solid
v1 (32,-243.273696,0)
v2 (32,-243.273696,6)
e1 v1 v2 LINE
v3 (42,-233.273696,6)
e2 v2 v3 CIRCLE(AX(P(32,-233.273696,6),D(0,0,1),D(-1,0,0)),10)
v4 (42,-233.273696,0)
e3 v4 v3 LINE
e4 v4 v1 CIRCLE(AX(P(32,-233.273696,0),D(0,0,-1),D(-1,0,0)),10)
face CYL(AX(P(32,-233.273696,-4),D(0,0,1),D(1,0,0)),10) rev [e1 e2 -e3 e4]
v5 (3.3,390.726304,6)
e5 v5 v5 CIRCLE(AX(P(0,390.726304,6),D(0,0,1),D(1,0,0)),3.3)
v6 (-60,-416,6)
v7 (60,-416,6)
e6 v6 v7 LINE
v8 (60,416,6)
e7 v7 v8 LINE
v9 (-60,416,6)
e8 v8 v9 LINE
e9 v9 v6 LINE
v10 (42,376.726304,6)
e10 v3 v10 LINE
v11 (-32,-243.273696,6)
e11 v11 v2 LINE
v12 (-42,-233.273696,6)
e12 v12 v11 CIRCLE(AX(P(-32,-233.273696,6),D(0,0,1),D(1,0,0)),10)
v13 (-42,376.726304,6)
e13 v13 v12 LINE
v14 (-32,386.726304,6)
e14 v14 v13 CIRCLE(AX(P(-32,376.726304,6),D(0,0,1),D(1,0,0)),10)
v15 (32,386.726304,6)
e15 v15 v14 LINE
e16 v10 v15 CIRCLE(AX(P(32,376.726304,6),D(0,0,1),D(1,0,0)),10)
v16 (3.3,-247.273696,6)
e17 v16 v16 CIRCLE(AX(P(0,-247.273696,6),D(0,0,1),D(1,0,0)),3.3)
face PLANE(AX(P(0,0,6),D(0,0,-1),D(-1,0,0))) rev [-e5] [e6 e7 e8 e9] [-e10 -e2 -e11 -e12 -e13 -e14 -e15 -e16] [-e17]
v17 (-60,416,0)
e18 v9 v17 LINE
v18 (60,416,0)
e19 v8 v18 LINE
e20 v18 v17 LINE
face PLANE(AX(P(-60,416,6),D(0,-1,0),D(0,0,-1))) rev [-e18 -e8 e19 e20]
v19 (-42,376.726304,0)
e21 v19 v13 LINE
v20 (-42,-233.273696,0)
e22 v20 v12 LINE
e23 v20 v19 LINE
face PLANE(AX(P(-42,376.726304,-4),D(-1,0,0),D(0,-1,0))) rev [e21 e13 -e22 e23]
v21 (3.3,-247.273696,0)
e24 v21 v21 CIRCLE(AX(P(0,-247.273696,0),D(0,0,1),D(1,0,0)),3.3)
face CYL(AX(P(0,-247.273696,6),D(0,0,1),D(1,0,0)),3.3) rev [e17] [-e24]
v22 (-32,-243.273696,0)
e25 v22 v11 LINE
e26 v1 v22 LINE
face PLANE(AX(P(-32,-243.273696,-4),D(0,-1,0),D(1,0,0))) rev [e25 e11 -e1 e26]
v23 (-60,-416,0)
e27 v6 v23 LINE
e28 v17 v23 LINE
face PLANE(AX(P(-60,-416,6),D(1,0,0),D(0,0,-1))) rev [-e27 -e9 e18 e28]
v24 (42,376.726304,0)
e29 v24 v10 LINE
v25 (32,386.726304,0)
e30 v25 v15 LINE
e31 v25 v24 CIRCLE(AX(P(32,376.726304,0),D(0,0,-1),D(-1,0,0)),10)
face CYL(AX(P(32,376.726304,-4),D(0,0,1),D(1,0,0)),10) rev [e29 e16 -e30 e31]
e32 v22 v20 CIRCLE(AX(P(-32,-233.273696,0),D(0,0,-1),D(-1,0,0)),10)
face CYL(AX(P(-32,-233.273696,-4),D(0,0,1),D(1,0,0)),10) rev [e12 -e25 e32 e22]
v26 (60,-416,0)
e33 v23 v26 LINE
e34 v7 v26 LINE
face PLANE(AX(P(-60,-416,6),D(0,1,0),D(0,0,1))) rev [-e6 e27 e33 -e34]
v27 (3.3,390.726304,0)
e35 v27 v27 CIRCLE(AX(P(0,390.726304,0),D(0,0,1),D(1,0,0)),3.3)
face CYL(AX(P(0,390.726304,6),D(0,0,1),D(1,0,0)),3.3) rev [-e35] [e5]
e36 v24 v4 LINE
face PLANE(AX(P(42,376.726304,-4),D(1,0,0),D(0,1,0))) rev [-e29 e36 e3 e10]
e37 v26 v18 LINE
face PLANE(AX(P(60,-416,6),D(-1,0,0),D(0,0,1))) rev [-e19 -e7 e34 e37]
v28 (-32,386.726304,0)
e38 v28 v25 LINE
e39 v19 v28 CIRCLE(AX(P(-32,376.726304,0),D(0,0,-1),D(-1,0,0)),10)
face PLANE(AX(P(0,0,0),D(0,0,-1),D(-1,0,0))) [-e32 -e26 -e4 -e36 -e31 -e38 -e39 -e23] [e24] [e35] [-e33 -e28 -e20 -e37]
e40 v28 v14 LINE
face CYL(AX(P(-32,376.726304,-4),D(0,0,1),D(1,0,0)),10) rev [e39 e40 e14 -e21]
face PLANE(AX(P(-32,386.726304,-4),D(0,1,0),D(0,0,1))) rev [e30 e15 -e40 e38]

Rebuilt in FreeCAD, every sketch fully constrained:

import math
import FreeCAD as App
import Part
import Sketcher
from FreeCAD import Vector
Q = App.Units.Quantity

doc = App.newDocument("Part")
params = doc.addObject("Spreadsheet::Sheet", "Params")
for row, (alias, value) in enumerate([
    ("sketch1_width", "120 mm"),
    ("sketch1_height", "832 mm"),
    ("pad1_length", "6 mm"),
    ("sketch2_radius", "10 mm"),
    ("sketch2_width", "64 mm"),
    ("sketch2_height", "610 mm"),
    ("pocket1_length", "10 mm"),
    ("sketch3_diameter", "6.6 mm"),
    ("hole_diameter", "6.6 mm"),
    ("hole_depth", "6 mm"),
], start=1):
    params.set(f"A{row}", alias)
    params.set(f"B{row}", "=" + value)
    params.setAlias(f"B{row}", alias)

body = doc.addObject("PartDesign::Body", "Body")

sketch1 = body.newObject("Sketcher::SketchObject", "Sketch")
sketch1.AttachmentSupport = (doc.getObject("XY_Plane"), [""])
sketch1.MapMode = "FlatFace"
sketch1.addGeometry(Part.LineSegment(Vector(-60, 416, 0), Vector(-60, -416, 0)), False)
sketch1.addGeometry(Part.LineSegment(Vector(-60, -416, 0), Vector(60, -416, 0)), False)
sketch1.addGeometry(Part.LineSegment(Vector(60, -416, 0), Vector(60, 416, 0)), False)
sketch1.addGeometry(Part.LineSegment(Vector(60, 416, 0), Vector(-60, 416, 0)), False)
sketch1.addConstraint(Sketcher.Constraint("Coincident", 0, 2, 1, 1))
sketch1.addConstraint(Sketcher.Constraint("Coincident", 1, 2, 2, 1))
sketch1.addConstraint(Sketcher.Constraint("Coincident", 2, 2, 3, 1))
sketch1.addConstraint(Sketcher.Constraint("Coincident", 3, 2, 0, 1))
sketch1.addConstraint(Sketcher.Constraint("Vertical", 0))
sketch1.addConstraint(Sketcher.Constraint("Horizontal", 1))
sketch1.addConstraint(Sketcher.Constraint("Vertical", 2))
sketch1.addConstraint(Sketcher.Constraint("Horizontal", 3))
sketch1.addConstraint(Sketcher.Constraint("Symmetric", 0, 2, 2, 2, -1, 1))
sketch1.addConstraint(Sketcher.Constraint("DistanceX", 1, 1, 1, 2, Q("120 mm")))
sketch1.addConstraint(Sketcher.Constraint("DistanceY", 0, 2, 0, 1, Q("832 mm")))
sketch1.setExpression("Constraints[9]", "Params.sketch1_width")
sketch1.setExpression("Constraints[10]", "Params.sketch1_height")
pad1 = body.newObject("PartDesign::Pad", "Pad")
pad1.Profile = sketch1
pad1.setExpression("Length", "Params.pad1_length")

sketch2 = body.newObject("Sketcher::SketchObject", "Sketch001")
sketch2.AttachmentSupport = (doc.getObject("XY_Plane"), [""])
sketch2.MapMode = "FlatFace"
sketch2.AttachmentOffset = App.Placement(Vector(0, 0, 6), App.Rotation())
sketch2.addGeometry(Part.LineSegment(Vector(-42, 377, 0), Vector(-42, -233, 0)), False)
sketch2.addGeometry(Part.ArcOfCircle(Part.Circle(Vector(-32, -233, 0), Vector(0, 0, 1), 10), math.radians(-180), math.radians(-90)), False)
sketch2.addGeometry(Part.LineSegment(Vector(-32, -243, 0), Vector(32, -243, 0)), False)
sketch2.addGeometry(Part.ArcOfCircle(Part.Circle(Vector(32, -233, 0), Vector(0, 0, 1), 10), math.radians(-90), math.radians(0)), False)
sketch2.addGeometry(Part.LineSegment(Vector(42, -233, 0), Vector(42, 377, 0)), False)
sketch2.addGeometry(Part.ArcOfCircle(Part.Circle(Vector(32, 377, 0), Vector(0, 0, 1), 10), math.radians(0), math.radians(90)), False)
sketch2.addGeometry(Part.LineSegment(Vector(32, 387, 0), Vector(-32, 387, 0)), False)
sketch2.addGeometry(Part.ArcOfCircle(Part.Circle(Vector(-32, 377, 0), Vector(0, 0, 1), 10), math.radians(90), math.radians(180)), False)
sketch2.addConstraint(Sketcher.Constraint("Tangent", 0, 2, 1, 1))
sketch2.addConstraint(Sketcher.Constraint("Tangent", 1, 2, 2, 1))
sketch2.addConstraint(Sketcher.Constraint("Tangent", 2, 2, 3, 1))
sketch2.addConstraint(Sketcher.Constraint("Tangent", 3, 2, 4, 1))
sketch2.addConstraint(Sketcher.Constraint("Tangent", 4, 2, 5, 1))
sketch2.addConstraint(Sketcher.Constraint("Tangent", 5, 2, 6, 1))
sketch2.addConstraint(Sketcher.Constraint("Tangent", 6, 2, 7, 1))
sketch2.addConstraint(Sketcher.Constraint("Tangent", 7, 2, 0, 1))
sketch2.addConstraint(Sketcher.Constraint("Vertical", 0))
sketch2.addConstraint(Sketcher.Constraint("Horizontal", 2))
sketch2.addConstraint(Sketcher.Constraint("Vertical", 4))
sketch2.addConstraint(Sketcher.Constraint("Horizontal", 6))
sketch2.addConstraint(Sketcher.Constraint("Equal", 1, 3))
sketch2.addConstraint(Sketcher.Constraint("Equal", 3, 5))
sketch2.addConstraint(Sketcher.Constraint("Equal", 5, 7))
sketch2.addConstraint(Sketcher.Constraint("Radius", 1, Q("10 mm")))
sketch2.addConstraint(Sketcher.Constraint("DistanceX", 2, 1, 2, 2, Q("64 mm")))
sketch2.addConstraint(Sketcher.Constraint("DistanceY", 0, 2, 0, 1, Q("610 mm")))
sketch2.addConstraint(Sketcher.Constraint("DistanceX", 1, 3, -1, 1, Q("32 mm")))
sketch2.addConstraint(Sketcher.Constraint("DistanceY", 1, 3, -1, 1, Q("233.273696 mm")))
sketch2.setExpression("Constraints[15]", "Params.sketch2_radius")
sketch2.setExpression("Constraints[16]", "Params.sketch2_width")
sketch2.setExpression("Constraints[17]", "Params.sketch2_height")
pocket1 = body.newObject("PartDesign::Pocket", "Pocket")
pocket1.Profile = sketch2
pocket1.setExpression("Length", "Params.pocket1_length")

sketch3 = body.newObject("Sketcher::SketchObject", "Sketch002")
sketch3.AttachmentSupport = (doc.getObject("XY_Plane"), [""])
sketch3.MapMode = "FlatFace"
sketch3.AttachmentOffset = App.Placement(Vector(0, 0, 6), App.Rotation())
sketch3.addGeometry(Part.Circle(Vector(0, 390.7, 0), Vector(0, 0, 1), 3.3), False)
sketch3.addGeometry(Part.Circle(Vector(0, -247.3, 0), Vector(0, 0, 1), 3.3), False)
sketch3.addConstraint(Sketcher.Constraint("Equal", 0, 1))
sketch3.addConstraint(Sketcher.Constraint("PointOnObject", 0, 3, -2))
sketch3.addConstraint(Sketcher.Constraint("PointOnObject", 1, 3, -2))
sketch3.addConstraint(Sketcher.Constraint("Diameter", 0, Q("6.6 mm")))
sketch3.addConstraint(Sketcher.Constraint("DistanceY", 1, 3, 0, 3, Q("638 mm")))
sketch3.addConstraint(Sketcher.Constraint("DistanceY", -1, 1, 0, 3, Q("390.726304 mm")))
sketch3.setExpression("Constraints[3]", "Params.sketch3_diameter")
doc.recompute()
hole = body.newObject("PartDesign::Hole", "Hole")
hole.Profile = sketch3
hole.ThreadType = "None"
hole.setExpression("Diameter", "Params.hole_diameter")
hole.DepthType = "Dimension"
hole.setExpression("Depth", "Params.hole_depth")
hole.DrillPoint = "Angled"
hole.DrillPointAngle = 118

doc.recompute()
